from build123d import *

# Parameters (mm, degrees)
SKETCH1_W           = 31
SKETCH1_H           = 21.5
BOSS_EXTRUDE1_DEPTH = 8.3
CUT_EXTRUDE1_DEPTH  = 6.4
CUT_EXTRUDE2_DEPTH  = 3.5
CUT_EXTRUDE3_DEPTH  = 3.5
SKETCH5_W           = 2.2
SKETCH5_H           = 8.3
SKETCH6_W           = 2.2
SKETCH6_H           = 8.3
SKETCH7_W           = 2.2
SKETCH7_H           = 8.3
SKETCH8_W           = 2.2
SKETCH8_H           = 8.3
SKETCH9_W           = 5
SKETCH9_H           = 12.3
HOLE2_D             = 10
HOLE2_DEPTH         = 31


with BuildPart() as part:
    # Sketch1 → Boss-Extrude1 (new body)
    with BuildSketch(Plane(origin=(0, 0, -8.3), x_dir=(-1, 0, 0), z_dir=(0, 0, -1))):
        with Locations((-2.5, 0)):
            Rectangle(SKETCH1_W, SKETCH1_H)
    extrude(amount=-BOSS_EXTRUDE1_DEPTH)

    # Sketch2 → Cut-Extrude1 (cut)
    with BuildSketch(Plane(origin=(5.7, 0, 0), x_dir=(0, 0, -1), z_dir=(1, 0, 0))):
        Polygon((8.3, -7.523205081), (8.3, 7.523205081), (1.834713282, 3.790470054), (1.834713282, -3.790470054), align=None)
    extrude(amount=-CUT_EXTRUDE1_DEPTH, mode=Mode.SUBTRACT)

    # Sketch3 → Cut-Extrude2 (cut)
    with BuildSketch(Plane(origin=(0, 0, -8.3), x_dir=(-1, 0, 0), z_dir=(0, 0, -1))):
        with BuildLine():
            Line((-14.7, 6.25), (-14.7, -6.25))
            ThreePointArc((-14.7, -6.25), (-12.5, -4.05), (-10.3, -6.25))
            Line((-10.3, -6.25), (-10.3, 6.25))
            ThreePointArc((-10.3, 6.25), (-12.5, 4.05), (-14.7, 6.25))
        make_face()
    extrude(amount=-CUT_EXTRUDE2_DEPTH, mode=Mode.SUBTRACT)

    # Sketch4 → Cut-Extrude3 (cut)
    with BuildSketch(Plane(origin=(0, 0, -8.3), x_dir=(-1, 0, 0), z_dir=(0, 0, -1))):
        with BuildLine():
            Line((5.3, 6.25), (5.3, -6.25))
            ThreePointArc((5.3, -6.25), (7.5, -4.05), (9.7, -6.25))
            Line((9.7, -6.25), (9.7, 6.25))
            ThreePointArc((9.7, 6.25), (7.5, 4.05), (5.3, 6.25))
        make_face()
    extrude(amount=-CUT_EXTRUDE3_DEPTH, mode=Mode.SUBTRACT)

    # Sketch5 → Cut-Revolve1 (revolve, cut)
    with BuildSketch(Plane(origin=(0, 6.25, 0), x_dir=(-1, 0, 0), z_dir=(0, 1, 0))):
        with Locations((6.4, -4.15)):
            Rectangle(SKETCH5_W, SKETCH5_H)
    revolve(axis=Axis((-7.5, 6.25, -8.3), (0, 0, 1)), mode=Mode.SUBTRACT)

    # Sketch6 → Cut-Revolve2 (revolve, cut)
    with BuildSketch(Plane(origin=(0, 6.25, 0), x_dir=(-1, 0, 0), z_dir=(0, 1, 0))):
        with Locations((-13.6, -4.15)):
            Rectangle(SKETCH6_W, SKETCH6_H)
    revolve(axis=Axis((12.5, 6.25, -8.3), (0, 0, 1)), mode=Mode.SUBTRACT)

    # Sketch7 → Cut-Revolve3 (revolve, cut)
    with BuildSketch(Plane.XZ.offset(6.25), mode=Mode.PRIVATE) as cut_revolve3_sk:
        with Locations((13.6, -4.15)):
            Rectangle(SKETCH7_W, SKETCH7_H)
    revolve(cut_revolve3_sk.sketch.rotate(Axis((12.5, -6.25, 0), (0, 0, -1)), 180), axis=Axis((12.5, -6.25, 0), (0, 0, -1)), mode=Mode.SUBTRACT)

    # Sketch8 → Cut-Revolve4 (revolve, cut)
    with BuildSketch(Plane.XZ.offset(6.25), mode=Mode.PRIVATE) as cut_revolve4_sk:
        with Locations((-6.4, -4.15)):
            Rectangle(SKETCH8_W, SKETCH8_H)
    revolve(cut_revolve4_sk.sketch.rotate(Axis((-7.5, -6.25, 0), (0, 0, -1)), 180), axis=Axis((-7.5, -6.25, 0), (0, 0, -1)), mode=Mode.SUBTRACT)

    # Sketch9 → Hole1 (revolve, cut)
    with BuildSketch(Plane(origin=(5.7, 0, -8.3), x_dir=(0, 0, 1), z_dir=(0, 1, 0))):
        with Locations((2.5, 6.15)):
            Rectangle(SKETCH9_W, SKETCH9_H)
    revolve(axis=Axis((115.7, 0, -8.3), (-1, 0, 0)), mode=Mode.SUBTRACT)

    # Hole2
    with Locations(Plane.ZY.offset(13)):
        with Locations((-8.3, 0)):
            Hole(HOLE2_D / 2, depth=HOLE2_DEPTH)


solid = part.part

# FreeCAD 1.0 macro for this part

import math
import FreeCAD as App
import Part
import Sketcher
Q = App.Units.Quantity

doc = App.newDocument("Part")
body = doc.addObject("PartDesign::Body", "Body")

# Sketch on XY plane
sketch1 = body.newObject("Sketcher::SketchObject", "Sketch")
sketch1.AttachmentSupport = (doc.getObject("XY_Plane"), [""])
sketch1.MapMode = "FlatFace"
sketch1.AttachmentOffset = App.Placement(App.Vector(0, 0, -8.3), App.Rotation())
sketch1.addGeometry([
    Part.LineSegment(App.Vector(18, 10.75, 0), App.Vector(18, -10.75, 0)),
    Part.LineSegment(App.Vector(18, -10.75, 0), App.Vector(-13, -10.75, 0)),
    Part.LineSegment(App.Vector(-13, -10.75, 0), App.Vector(-13, 10.75, 0)),
    Part.LineSegment(App.Vector(-13, 10.75, 0), App.Vector(18, 10.75, 0)),
], False)
sketch1.addConstraint([
    Sketcher.Constraint("Coincident", 0, 2, 1, 1),
    Sketcher.Constraint("Coincident", 1, 2, 2, 1),
    Sketcher.Constraint("Coincident", 2, 2, 3, 1),
    Sketcher.Constraint("Coincident", 3, 2, 0, 1),
    Sketcher.Constraint("Vertical", 0),
    Sketcher.Constraint("Horizontal", 1),
    Sketcher.Constraint("Vertical", 2),
    Sketcher.Constraint("Horizontal", 3),
    Sketcher.Constraint("DistanceX", 1, 2, 1, 1, Q("31 mm")),
    Sketcher.Constraint("DistanceY", 0, 2, 0, 1, Q("21.5 mm")),
    Sketcher.Constraint("DistanceX", -1, 1, 0, 2, Q("18 mm")),
    Sketcher.Constraint("DistanceY", 0, 2, -1, 1, Q("10.75 mm")),
])
pad1 = body.newObject("PartDesign::Pad", "Pad")
pad1.Profile = sketch1
pad1.Length = 8.3

# Sketch on YZ plane
sketch2 = body.newObject("Sketcher::SketchObject", "Sketch001")
sketch2.AttachmentSupport = (doc.getObject("YZ_Plane"), [""])
sketch2.MapMode = "FlatFace"
sketch2.AttachmentOffset = App.Placement(App.Vector(0, 0, 5.7), App.Rotation())
sketch2.addGeometry([
    Part.LineSegment(App.Vector(-7.523205, -8.3, 0), App.Vector(7.523205, -8.3, 0)),
    Part.LineSegment(App.Vector(7.523205, -8.3, 0), App.Vector(3.79047, -1.834713, 0)),
    Part.LineSegment(App.Vector(3.79047, -1.834713, 0), App.Vector(-3.79047, -1.834713, 0)),
    Part.LineSegment(App.Vector(-3.79047, -1.834713, 0), App.Vector(-7.523205, -8.3, 0)),
], False)
sketch2.addConstraint([
    Sketcher.Constraint("Coincident", 0, 2, 1, 1),
    Sketcher.Constraint("Coincident", 1, 2, 2, 1),
    Sketcher.Constraint("Coincident", 2, 2, 3, 1),
    Sketcher.Constraint("Coincident", 3, 2, 0, 1),
    Sketcher.Constraint("Horizontal", 0),
    Sketcher.Constraint("Horizontal", 2),
    Sketcher.Constraint("Equal", 1, 3),
    Sketcher.Constraint("Angle", 1, Q("120 deg")),
    Sketcher.Constraint("DistanceY", 0, 2, -1, 1, Q("8.3 mm")),
    Sketcher.Constraint("DistanceX", 0, 1, 0, 2, Q("15.04641 mm")),
    Sketcher.Constraint("DistanceX", 2, 2, 2, 1, Q("7.58094 mm")),
    Sketcher.Constraint("DistanceX", -1, 1, 1, 2, Q("3.79047 mm")),
])
pocket1 = body.newObject("PartDesign::Pocket", "Pocket")
pocket1.Profile = sketch2
pocket1.Length = 6.4

# Sketch on XY plane
sketch3 = body.newObject("Sketcher::SketchObject", "Sketch002")
sketch3.AttachmentSupport = (doc.getObject("XY_Plane"), [""])
sketch3.MapMode = "FlatFace"
sketch3.AttachmentOffset = App.Placement(App.Vector(0, 0, -8.3), App.Rotation())
sketch3.addGeometry([
    Part.LineSegment(App.Vector(14.7, 6.25, 0), App.Vector(14.7, -6.25, 0)),
    Part.ArcOfCircle(Part.Circle(App.Vector(12.5, -6.25, 0), App.Vector(0, 0, 1), 2.2), math.radians(0), math.radians(180)),
    Part.LineSegment(App.Vector(10.3, -6.25, 0), App.Vector(10.3, 6.25, 0)),
    Part.ArcOfCircle(Part.Circle(App.Vector(12.5, 6.25, 0), App.Vector(0, 0, 1), 2.2), math.radians(180), math.radians(360)),
], False)
sketch3.addConstraint([
    Sketcher.Constraint("Tangent", 0, 2, 1, 1),
    Sketcher.Constraint("Tangent", 1, 2, 2, 1),
    Sketcher.Constraint("Tangent", 2, 2, 3, 1),
    Sketcher.Constraint("Tangent", 3, 2, 0, 1),
    Sketcher.Constraint("Vertical", 0),
    Sketcher.Constraint("Vertical", 2),
    Sketcher.Constraint("Radius", 1, Q("2.2 mm")),
    Sketcher.Constraint("DistanceY", 0, 2, 0, 1, Q("12.5 mm")),
    Sketcher.Constraint("DistanceX", -1, 1, 1, 3, Q("12.5 mm")),
    Sketcher.Constraint("DistanceY", 1, 3, -1, 1, Q("6.25 mm")),
])
pocket2 = body.newObject("PartDesign::Pocket", "Pocket001")
pocket2.Profile = sketch3
pocket2.Length = 3.5
pocket2.Reversed = True

# Sketch on XY plane
sketch4 = body.newObject("Sketcher::SketchObject", "Sketch003")
sketch4.AttachmentSupport = (doc.getObject("XY_Plane"), [""])
sketch4.MapMode = "FlatFace"
sketch4.AttachmentOffset = App.Placement(App.Vector(0, 0, -8.3), App.Rotation())
sketch4.addGeometry([
    Part.LineSegment(App.Vector(-5.3, 6.25, 0), App.Vector(-5.3, -6.25, 0)),
    Part.ArcOfCircle(Part.Circle(App.Vector(-7.5, -6.25, 0), App.Vector(0, 0, 1), 2.2), math.radians(0), math.radians(180)),
    Part.LineSegment(App.Vector(-9.7, -6.25, 0), App.Vector(-9.7, 6.25, 0)),
    Part.ArcOfCircle(Part.Circle(App.Vector(-7.5, 6.25, 0), App.Vector(0, 0, 1), 2.2), math.radians(180), math.radians(360)),
], False)
sketch4.addConstraint([
    Sketcher.Constraint("Tangent", 0, 2, 1, 1),
    Sketcher.Constraint("Tangent", 1, 2, 2, 1),
    Sketcher.Constraint("Tangent", 2, 2, 3, 1),
    Sketcher.Constraint("Tangent", 3, 2, 0, 1),
    Sketcher.Constraint("Vertical", 0),
    Sketcher.Constraint("Vertical", 2),
    Sketcher.Constraint("Radius", 1, Q("2.2 mm")),
    Sketcher.Constraint("DistanceY", 0, 2, 0, 1, Q("12.5 mm")),
    Sketcher.Constraint("DistanceX", 1, 3, -1, 1, Q("7.5 mm")),
    Sketcher.Constraint("DistanceY", 1, 3, -1, 1, Q("6.25 mm")),
])
pocket3 = body.newObject("PartDesign::Pocket", "Pocket002")
pocket3.Profile = sketch4
pocket3.Length = 3.5
pocket3.Reversed = True

# Sketch on XZ plane
sketch5 = body.newObject("Sketcher::SketchObject", "Sketch004")
sketch5.AttachmentSupport = (doc.getObject("XZ_Plane"), [""])
sketch5.MapMode = "FlatFace"
sketch5.AttachmentOffset = App.Placement(App.Vector(0, 0, -6.25), App.Rotation())
sketch5.addGeometry([
    Part.LineSegment(App.Vector(-5.3, 0, 0), App.Vector(-5.3, -8.3, 0)),
    Part.LineSegment(App.Vector(-5.3, -8.3, 0), App.Vector(-7.5, -8.3, 0)),
    Part.LineSegment(App.Vector(-7.5, -8.3, 0), App.Vector(-7.5, 0, 0)),
    Part.LineSegment(App.Vector(-7.5, 0, 0), App.Vector(-5.3, 0, 0)),
], False)
sketch5.addGeometry(Part.LineSegment(App.Vector(-7.5, -8.3, 0), App.Vector(-7.5, 0, 0)), True)  # axis
sketch5.addConstraint([
    Sketcher.Constraint("Coincident", 0, 2, 1, 1),
    Sketcher.Constraint("Coincident", 1, 2, 2, 1),
    Sketcher.Constraint("Coincident", 2, 2, 3, 1),
    Sketcher.Constraint("Coincident", 3, 2, 0, 1),
    Sketcher.Constraint("Vertical", 0),
    Sketcher.Constraint("Horizontal", 1),
    Sketcher.Constraint("Vertical", 2),
    Sketcher.Constraint("Horizontal", 3),
    Sketcher.Constraint("Vertical", 4),
    Sketcher.Constraint("Coincident", 4, 1, 1, 2),
    Sketcher.Constraint("PointOnObject", 2, 2, -1),
    Sketcher.Constraint("PointOnObject", 4, 2, -1),
    Sketcher.Constraint("DistanceX", 1, 2, 1, 1, Q("2.2 mm")),
    Sketcher.Constraint("DistanceY", 0, 2, 0, 1, Q("8.3 mm")),
    Sketcher.Constraint("DistanceX", 0, 2, -1, 1, Q("5.3 mm")),
])
groove = body.newObject("PartDesign::Groove", "Groove")
groove.Profile = sketch5
groove.ReferenceAxis = (sketch5, ["Axis0"])
groove.Angle = 360

# Sketch on XZ plane
sketch6 = body.newObject("Sketcher::SketchObject", "Sketch005")
sketch6.AttachmentSupport = (doc.getObject("XZ_Plane"), [""])
sketch6.MapMode = "FlatFace"
sketch6.AttachmentOffset = App.Placement(App.Vector(0, 0, -6.25), App.Rotation())
sketch6.addGeometry([
    Part.LineSegment(App.Vector(14.7, 0, 0), App.Vector(14.7, -8.3, 0)),
    Part.LineSegment(App.Vector(14.7, -8.3, 0), App.Vector(12.5, -8.3, 0)),
    Part.LineSegment(App.Vector(12.5, -8.3, 0), App.Vector(12.5, 0, 0)),
    Part.LineSegment(App.Vector(12.5, 0, 0), App.Vector(14.7, 0, 0)),
], False)
sketch6.addGeometry(Part.LineSegment(App.Vector(12.5, -8.3, 0), App.Vector(12.5, 0, 0)), True)  # axis
sketch6.addConstraint([
    Sketcher.Constraint("Coincident", 0, 2, 1, 1),
    Sketcher.Constraint("Coincident", 1, 2, 2, 1),
    Sketcher.Constraint("Coincident", 2, 2, 3, 1),
    Sketcher.Constraint("Coincident", 3, 2, 0, 1),
    Sketcher.Constraint("Vertical", 0),
    Sketcher.Constraint("Horizontal", 1),
    Sketcher.Constraint("Vertical", 2),
    Sketcher.Constraint("Horizontal", 3),
    Sketcher.Constraint("Vertical", 4),
    Sketcher.Constraint("Coincident", 4, 1, 1, 2),
    Sketcher.Constraint("PointOnObject", 2, 2, -1),
    Sketcher.Constraint("PointOnObject", 4, 2, -1),
    Sketcher.Constraint("DistanceX", 1, 2, 1, 1, Q("2.2 mm")),
    Sketcher.Constraint("DistanceY", 0, 2, 0, 1, Q("8.3 mm")),
    Sketcher.Constraint("DistanceX", -1, 1, 0, 2, Q("14.7 mm")),
])
groove2 = body.newObject("PartDesign::Groove", "Groove001")
groove2.Profile = sketch6
groove2.ReferenceAxis = (sketch6, ["Axis0"])
groove2.Angle = 360

# Sketch on XZ plane
sketch7 = body.newObject("Sketcher::SketchObject", "Sketch006")
sketch7.AttachmentSupport = (doc.getObject("XZ_Plane"), [""])
sketch7.MapMode = "FlatFace"
sketch7.AttachmentOffset = App.Placement(App.Vector(0, 0, 6.25), App.Rotation())
sketch7.addGeometry([
    Part.LineSegment(App.Vector(12.5, 0, 0), App.Vector(12.5, -8.3, 0)),
    Part.LineSegment(App.Vector(12.5, -8.3, 0), App.Vector(14.7, -8.3, 0)),
    Part.LineSegment(App.Vector(14.7, -8.3, 0), App.Vector(14.7, 0, 0)),
    Part.LineSegment(App.Vector(14.7, 0, 0), App.Vector(12.5, 0, 0)),
], False)
sketch7.addGeometry(Part.LineSegment(App.Vector(12.5, 0, 0), App.Vector(12.5, -8.3, 0)), True)  # axis
sketch7.addConstraint([
    Sketcher.Constraint("Coincident", 0, 2, 1, 1),
    Sketcher.Constraint("Coincident", 1, 2, 2, 1),
    Sketcher.Constraint("Coincident", 2, 2, 3, 1),
    Sketcher.Constraint("Coincident", 3, 2, 0, 1),
    Sketcher.Constraint("Vertical", 0),
    Sketcher.Constraint("Horizontal", 1),
    Sketcher.Constraint("Vertical", 2),
    Sketcher.Constraint("Horizontal", 3),
    Sketcher.Constraint("Vertical", 4),
    Sketcher.Constraint("Coincident", 4, 1, 3, 2),
    Sketcher.Constraint("PointOnObject", 2, 2, -1),
    Sketcher.Constraint("Horizontal", 1, 2, 4, 2),
    Sketcher.Constraint("DistanceX", 1, 1, 1, 2, Q("2.2 mm")),
    Sketcher.Constraint("DistanceY", 0, 2, 0, 1, Q("8.3 mm")),
    Sketcher.Constraint("DistanceX", -1, 1, 0, 2, Q("12.5 mm")),
])
groove3 = body.newObject("PartDesign::Groove", "Groove002")
groove3.Profile = sketch7
groove3.ReferenceAxis = (sketch7, ["Axis0"])
groove3.Angle = 360

# Sketch on XZ plane
sketch8 = body.newObject("Sketcher::SketchObject", "Sketch007")
sketch8.AttachmentSupport = (doc.getObject("XZ_Plane"), [""])
sketch8.MapMode = "FlatFace"
sketch8.AttachmentOffset = App.Placement(App.Vector(0, 0, 6.25), App.Rotation())
sketch8.addGeometry([
    Part.LineSegment(App.Vector(-7.5, 0, 0), App.Vector(-7.5, -8.3, 0)),
    Part.LineSegment(App.Vector(-7.5, -8.3, 0), App.Vector(-5.3, -8.3, 0)),
    Part.LineSegment(App.Vector(-5.3, -8.3, 0), App.Vector(-5.3, 0, 0)),
    Part.LineSegment(App.Vector(-5.3, 0, 0), App.Vector(-7.5, 0, 0)),
], False)
sketch8.addGeometry(Part.LineSegment(App.Vector(-7.5, 0, 0), App.Vector(-7.5, -8.3, 0)), True)  # axis
sketch8.addConstraint([
    Sketcher.Constraint("Coincident", 0, 2, 1, 1),
    Sketcher.Constraint("Coincident", 1, 2, 2, 1),
    Sketcher.Constraint("Coincident", 2, 2, 3, 1),
    Sketcher.Constraint("Coincident", 3, 2, 0, 1),
    Sketcher.Constraint("Vertical", 0),
    Sketcher.Constraint("Horizontal", 1),
    Sketcher.Constraint("Vertical", 2),
    Sketcher.Constraint("Horizontal", 3),
    Sketcher.Constraint("Vertical", 4),
    Sketcher.Constraint("Coincident", 4, 1, 3, 2),
    Sketcher.Constraint("PointOnObject", 2, 2, -1),
    Sketcher.Constraint("Horizontal", 1, 2, 4, 2),
    Sketcher.Constraint("DistanceX", 1, 1, 1, 2, Q("2.2 mm")),
    Sketcher.Constraint("DistanceY", 0, 2, 0, 1, Q("8.3 mm")),
    Sketcher.Constraint("DistanceX", 0, 2, -1, 1, Q("7.5 mm")),
])
groove4 = body.newObject("PartDesign::Groove", "Groove003")
groove4.Profile = sketch8
groove4.ReferenceAxis = (sketch8, ["Axis0"])
groove4.Angle = 360

# Sketch on XZ plane
sketch9 = body.newObject("Sketcher::SketchObject", "Sketch008")
sketch9.AttachmentSupport = (doc.getObject("XZ_Plane"), [""])
sketch9.MapMode = "FlatFace"
sketch9.addGeometry([
    Part.LineSegment(App.Vector(18, -8.3, 0), App.Vector(5.7, -8.3, 0)),
    Part.LineSegment(App.Vector(5.7, -8.3, 0), App.Vector(5.7, -3.3, 0)),
    Part.LineSegment(App.Vector(5.7, -3.3, 0), App.Vector(18, -3.3, 0)),
    Part.LineSegment(App.Vector(18, -3.3, 0), App.Vector(18, -8.3, 0)),
], False)
sketch9.addGeometry(Part.LineSegment(App.Vector(18, -8.3, 0), App.Vector(5.7, -8.3, 0)), True)  # axis
sketch9.addConstraint([
    Sketcher.Constraint("Coincident", 0, 2, 1, 1),
    Sketcher.Constraint("Coincident", 1, 2, 2, 1),
    Sketcher.Constraint("Coincident", 2, 2, 3, 1),
    Sketcher.Constraint("Coincident", 3, 2, 0, 1),
    Sketcher.Constraint("Horizontal", 0),
    Sketcher.Constraint("Vertical", 1),
    Sketcher.Constraint("Horizontal", 2),
    Sketcher.Constraint("Vertical", 3),
    Sketcher.Constraint("Horizontal", 4),
    Sketcher.Constraint("Coincident", 4, 1, 3, 2),
    Sketcher.Constraint("Vertical", 1, 2, 4, 2),
    Sketcher.Constraint("DistanceY", 1, 1, 1, 2, Q("5 mm")),
    Sketcher.Constraint("DistanceX", 0, 2, 0, 1, Q("12.3 mm")),
    Sketcher.Constraint("DistanceX", -1, 1, 2, 2, Q("18 mm")),
    Sketcher.Constraint("DistanceY", 0, 2, -1, 1, Q("8.3 mm")),
])
groove5 = body.newObject("PartDesign::Groove", "Groove004")
groove5.Profile = sketch9
groove5.ReferenceAxis = (sketch9, ["Axis0"])
groove5.Angle = 360

# Sketch on YZ plane
sketch10 = body.newObject("Sketcher::SketchObject", "Sketch009")
sketch10.AttachmentSupport = (doc.getObject("YZ_Plane"), [""])
sketch10.MapMode = "FlatFace"
sketch10.AttachmentOffset = App.Placement(App.Vector(0, 0, -13), App.Rotation())
sketch10.addGeometry(Part.Circle(App.Vector(0, -8.3, 0), App.Vector(0, 0, 1), 5), False)
sketch10.addConstraint([
    Sketcher.Constraint("PointOnObject", 0, 3, -2),
    Sketcher.Constraint("Diameter", 0, Q("10 mm")),
    Sketcher.Constraint("DistanceY", 0, 3, -1, 1, Q("8.3 mm")),
])
doc.recompute()
hole = body.newObject("PartDesign::Hole", "Hole")
hole.Profile = sketch10
hole.ThreadType = "None"
hole.Diameter = 10
hole.DepthType = "Dimension"
hole.Depth = 31
hole.DrillPoint = "Flat"
hole.Reversed = True

doc.recompute()
